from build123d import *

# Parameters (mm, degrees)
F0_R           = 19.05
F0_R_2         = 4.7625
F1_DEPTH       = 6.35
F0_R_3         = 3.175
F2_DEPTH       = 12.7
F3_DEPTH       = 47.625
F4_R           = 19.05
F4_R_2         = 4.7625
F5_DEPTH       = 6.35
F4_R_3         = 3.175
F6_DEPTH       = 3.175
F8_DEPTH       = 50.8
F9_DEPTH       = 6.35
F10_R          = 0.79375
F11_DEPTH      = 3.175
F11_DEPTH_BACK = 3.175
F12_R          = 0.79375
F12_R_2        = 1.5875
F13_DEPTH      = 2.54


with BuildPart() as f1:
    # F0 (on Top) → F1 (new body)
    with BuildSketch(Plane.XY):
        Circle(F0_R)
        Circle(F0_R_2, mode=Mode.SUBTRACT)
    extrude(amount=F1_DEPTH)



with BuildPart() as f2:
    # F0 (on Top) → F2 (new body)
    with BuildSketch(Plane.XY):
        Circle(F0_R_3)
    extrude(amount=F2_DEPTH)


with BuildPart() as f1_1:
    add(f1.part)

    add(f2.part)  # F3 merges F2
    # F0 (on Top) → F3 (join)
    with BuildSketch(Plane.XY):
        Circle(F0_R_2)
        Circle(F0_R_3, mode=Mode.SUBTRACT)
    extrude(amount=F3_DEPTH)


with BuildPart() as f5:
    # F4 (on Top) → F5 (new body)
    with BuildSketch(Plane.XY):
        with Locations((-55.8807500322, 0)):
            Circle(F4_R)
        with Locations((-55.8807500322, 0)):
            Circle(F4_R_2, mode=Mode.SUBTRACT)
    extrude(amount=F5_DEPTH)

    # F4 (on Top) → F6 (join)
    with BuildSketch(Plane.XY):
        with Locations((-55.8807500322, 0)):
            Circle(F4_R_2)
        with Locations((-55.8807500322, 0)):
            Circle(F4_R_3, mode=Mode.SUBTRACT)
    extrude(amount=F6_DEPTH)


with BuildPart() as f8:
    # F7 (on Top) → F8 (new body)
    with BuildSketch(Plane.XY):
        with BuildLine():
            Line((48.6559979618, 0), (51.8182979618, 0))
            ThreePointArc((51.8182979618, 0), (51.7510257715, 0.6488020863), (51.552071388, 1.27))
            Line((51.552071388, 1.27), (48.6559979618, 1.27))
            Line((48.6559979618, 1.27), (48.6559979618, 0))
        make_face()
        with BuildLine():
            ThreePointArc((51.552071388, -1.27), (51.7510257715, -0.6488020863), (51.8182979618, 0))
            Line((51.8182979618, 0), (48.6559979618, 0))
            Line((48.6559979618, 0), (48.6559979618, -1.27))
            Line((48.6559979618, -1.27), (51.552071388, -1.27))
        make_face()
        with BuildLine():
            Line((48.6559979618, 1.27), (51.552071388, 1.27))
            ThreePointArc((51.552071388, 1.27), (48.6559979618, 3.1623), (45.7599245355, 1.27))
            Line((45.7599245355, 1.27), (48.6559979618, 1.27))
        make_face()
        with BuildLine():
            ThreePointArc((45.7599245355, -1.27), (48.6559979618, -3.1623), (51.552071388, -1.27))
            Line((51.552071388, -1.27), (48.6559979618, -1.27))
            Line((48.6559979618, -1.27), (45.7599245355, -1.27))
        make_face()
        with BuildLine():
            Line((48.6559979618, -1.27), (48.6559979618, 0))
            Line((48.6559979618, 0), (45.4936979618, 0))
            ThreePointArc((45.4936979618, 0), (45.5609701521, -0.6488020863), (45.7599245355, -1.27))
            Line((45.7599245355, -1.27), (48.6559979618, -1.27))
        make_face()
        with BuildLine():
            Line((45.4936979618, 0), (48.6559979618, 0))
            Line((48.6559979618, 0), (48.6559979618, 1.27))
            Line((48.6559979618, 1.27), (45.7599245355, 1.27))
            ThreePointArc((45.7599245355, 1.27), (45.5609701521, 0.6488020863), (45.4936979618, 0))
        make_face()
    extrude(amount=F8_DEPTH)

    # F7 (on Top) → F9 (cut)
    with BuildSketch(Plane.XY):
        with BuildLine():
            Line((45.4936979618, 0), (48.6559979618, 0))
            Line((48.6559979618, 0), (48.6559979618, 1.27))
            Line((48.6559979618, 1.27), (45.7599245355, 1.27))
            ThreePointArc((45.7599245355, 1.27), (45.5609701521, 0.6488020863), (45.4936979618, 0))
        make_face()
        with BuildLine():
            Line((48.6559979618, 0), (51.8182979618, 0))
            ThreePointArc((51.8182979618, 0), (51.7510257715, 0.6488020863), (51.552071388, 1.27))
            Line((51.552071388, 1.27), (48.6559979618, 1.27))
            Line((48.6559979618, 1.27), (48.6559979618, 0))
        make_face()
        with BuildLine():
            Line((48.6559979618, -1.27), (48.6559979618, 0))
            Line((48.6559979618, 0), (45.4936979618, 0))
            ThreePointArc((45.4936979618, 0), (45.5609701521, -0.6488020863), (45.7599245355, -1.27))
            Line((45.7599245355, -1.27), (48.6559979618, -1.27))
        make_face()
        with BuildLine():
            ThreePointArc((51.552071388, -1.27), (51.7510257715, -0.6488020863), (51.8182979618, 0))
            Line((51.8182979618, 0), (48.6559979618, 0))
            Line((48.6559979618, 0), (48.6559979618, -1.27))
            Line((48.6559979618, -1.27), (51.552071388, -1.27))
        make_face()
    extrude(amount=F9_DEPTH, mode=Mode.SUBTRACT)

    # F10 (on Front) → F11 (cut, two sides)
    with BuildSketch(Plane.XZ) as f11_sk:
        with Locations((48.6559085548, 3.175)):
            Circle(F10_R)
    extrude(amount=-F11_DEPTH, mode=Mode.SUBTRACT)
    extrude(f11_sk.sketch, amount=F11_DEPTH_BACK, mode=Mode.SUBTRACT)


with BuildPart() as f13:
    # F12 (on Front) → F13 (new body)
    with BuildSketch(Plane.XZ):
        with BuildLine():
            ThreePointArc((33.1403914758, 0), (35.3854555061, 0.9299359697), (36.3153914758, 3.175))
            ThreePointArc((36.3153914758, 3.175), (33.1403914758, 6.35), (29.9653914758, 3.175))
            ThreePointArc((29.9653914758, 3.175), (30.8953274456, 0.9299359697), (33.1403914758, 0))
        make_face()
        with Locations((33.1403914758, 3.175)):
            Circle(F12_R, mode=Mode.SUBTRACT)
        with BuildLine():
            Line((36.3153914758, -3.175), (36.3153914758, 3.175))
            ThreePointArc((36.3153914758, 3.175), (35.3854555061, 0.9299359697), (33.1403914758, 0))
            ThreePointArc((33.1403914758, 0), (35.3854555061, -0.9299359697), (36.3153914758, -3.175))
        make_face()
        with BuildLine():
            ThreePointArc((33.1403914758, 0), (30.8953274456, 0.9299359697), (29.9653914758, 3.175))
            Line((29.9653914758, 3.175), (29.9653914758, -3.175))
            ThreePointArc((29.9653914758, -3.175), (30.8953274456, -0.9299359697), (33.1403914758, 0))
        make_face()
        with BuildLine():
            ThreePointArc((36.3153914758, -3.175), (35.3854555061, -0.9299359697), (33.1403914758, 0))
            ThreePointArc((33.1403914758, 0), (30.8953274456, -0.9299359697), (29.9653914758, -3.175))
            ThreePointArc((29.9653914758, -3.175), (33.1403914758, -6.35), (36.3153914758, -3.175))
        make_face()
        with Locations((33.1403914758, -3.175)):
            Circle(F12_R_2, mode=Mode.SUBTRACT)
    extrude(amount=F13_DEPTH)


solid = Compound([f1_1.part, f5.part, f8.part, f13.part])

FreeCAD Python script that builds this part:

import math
import FreeCAD as App
import Part
import Sketcher
from FreeCAD import Vector
Q = App.Units.Quantity

doc = App.newDocument("Part")
body = doc.addObject("PartDesign::Body", "Body")

sketch1 = doc.addObject("Sketcher::SketchObject", "Sketch")
body.addObject(sketch1)
sketch1.AttachmentSupport = (doc.XY_Plane, [""])
sketch1.MapMode = "FlatFace"
sketch1.addGeometry(Part.Circle(Vector(0, 0, 0), Vector(0, 0, 1), 19.1), False)
sketch1.addGeometry(Part.Circle(Vector(0, 0, 0), Vector(0, 0, 1), 4.8), False)
sketch1.addConstraint(Sketcher.Constraint("Coincident", 0, 3, -1, 1))
sketch1.addConstraint(Sketcher.Constraint("Coincident", 1, 3, -1, 1))
sketch1.addConstraint(Sketcher.Constraint("Diameter", 0, Q("1.5 in")))
sketch1.addConstraint(Sketcher.Constraint("Diameter", 1, Q("0.375 in")))
pad1 = doc.addObject("PartDesign::Pad", "Pad")
body.addObject(pad1)
pad1.Profile = sketch1
pad1.Length = Q("0.25 in")
body2 = doc.addObject("PartDesign::Body", "Body001")

sketch2 = doc.addObject("Sketcher::SketchObject", "Sketch001")
body2.addObject(sketch2)
sketch2.AttachmentSupport = (doc.getObject("XY_Plane001"), [""])
sketch2.MapMode = "FlatFace"
sketch2.addGeometry(Part.Circle(Vector(0, 0, 0), Vector(0, 0, 1), 3.2), False)
sketch2.addConstraint(Sketcher.Constraint("Coincident", 0, 3, -1, 1))
sketch2.addConstraint(Sketcher.Constraint("Diameter", 0, Q("0.25 in")))
pad2 = doc.addObject("PartDesign::Pad", "Pad001")
body2.addObject(pad2)
pad2.Profile = sketch2
pad2.Length = Q("0.5 in")
body.AllowCompound = True
doc.recompute()

boolean = doc.addObject("PartDesign::Boolean", "Boolean")
body.addObject(boolean)
boolean.Type = "Fuse"
boolean.addObjects([body2])

sketch3 = doc.addObject("Sketcher::SketchObject", "Sketch002")
body.addObject(sketch3)
sketch3.AttachmentSupport = (doc.XY_Plane, [""])
sketch3.MapMode = "FlatFace"
sketch3.addGeometry(Part.Circle(Vector(0, 0, 0), Vector(0, 0, 1), 4.8), False)
sketch3.addGeometry(Part.Circle(Vector(0, 0, 0), Vector(0, 0, 1), 3.2), False)
sketch3.addConstraint(Sketcher.Constraint("Coincident", 0, 3, -1, 1))
sketch3.addConstraint(Sketcher.Constraint("Coincident", 1, 3, -1, 1))
sketch3.addConstraint(Sketcher.Constraint("Diameter", 1, Q("0.25 in")))
sketch3.addConstraint(Sketcher.Constraint("Diameter", 0, Q("0.375 in")))
pad3 = doc.addObject("PartDesign::Pad", "Pad002")
body.addObject(pad3)
pad3.Profile = sketch3
pad3.Length = Q("1.875 in")
body3 = doc.addObject("PartDesign::Body", "Body002")

sketch4 = doc.addObject("Sketcher::SketchObject", "Sketch003")
body3.addObject(sketch4)
sketch4.AttachmentSupport = (doc.getObject("XY_Plane002"), [""])
sketch4.MapMode = "FlatFace"
sketch4.addGeometry(Part.Circle(Vector(-55.9, 0, 0), Vector(0, 0, 1), 19.1), False)
sketch4.addGeometry(Part.Circle(Vector(-55.9, 0, 0), Vector(0, 0, 1), 4.8), False)
sketch4.addConstraint(Sketcher.Constraint("Coincident", 1, 3, 0, 3))
sketch4.addConstraint(Sketcher.Constraint("PointOnObject", 0, 3, -1))
sketch4.addConstraint(Sketcher.Constraint("Diameter", 0, Q("1.5 in")))
sketch4.addConstraint(Sketcher.Constraint("Diameter", 1, Q("0.375 in")))
sketch4.addConstraint(Sketcher.Constraint("DistanceX", 0, 3, -1, 1, Q("55.88075 mm")))
pad4 = doc.addObject("PartDesign::Pad", "Pad003")
body3.addObject(pad4)
pad4.Profile = sketch4
pad4.Length = Q("0.25 in")

sketch5 = doc.addObject("Sketcher::SketchObject", "Sketch004")
body3.addObject(sketch5)
sketch5.AttachmentSupport = (doc.getObject("XY_Plane002"), [""])
sketch5.MapMode = "FlatFace"
sketch5.addGeometry(Part.Circle(Vector(-55.9, 0, 0), Vector(0, 0, 1), 4.8), False)
sketch5.addGeometry(Part.Circle(Vector(-55.9, 0, 0), Vector(0, 0, 1), 3.2), False)
sketch5.addConstraint(Sketcher.Constraint("Coincident", 1, 3, 0, 3))
sketch5.addConstraint(Sketcher.Constraint("PointOnObject", 0, 3, -1))
sketch5.addConstraint(Sketcher.Constraint("Diameter", 1, Q("0.25 in")))
sketch5.addConstraint(Sketcher.Constraint("Diameter", 0, Q("0.375 in")))
sketch5.addConstraint(Sketcher.Constraint("DistanceX", 0, 3, -1, 1, Q("55.88075 mm")))
pad5 = doc.addObject("PartDesign::Pad", "Pad004")
body3.addObject(pad5)
pad5.Profile = sketch5
pad5.Length = Q("0.125 in")
body4 = doc.addObject("PartDesign::Body", "Body003")

sketch6 = doc.addObject("Sketcher::SketchObject", "Sketch005")
body4.addObject(sketch6)
sketch6.AttachmentSupport = (doc.getObject("XY_Plane003"), [""])
sketch6.MapMode = "FlatFace"
sketch6.addGeometry(Part.ArcOfCircle(Part.Circle(Vector(48.7, 0, 0), Vector(0, 0, 1), 3.2), math.radians(0), math.radians(24)), False)
sketch6.addGeometry(Part.ArcOfCircle(Part.Circle(Vector(48.7, 0, 0), Vector(0, 0, 1), 3.2), math.radians(24), math.radians(156)), False)
sketch6.addGeometry(Part.ArcOfCircle(Part.Circle(Vector(48.7, 0, 0), Vector(0, 0, 1), 3.2), math.radians(156), math.radians(180)), False)
sketch6.addGeometry(Part.ArcOfCircle(Part.Circle(Vector(48.7, 0, 0), Vector(0, 0, 1), 3.2), math.radians(180), math.radians(204)), False)
sketch6.addGeometry(Part.ArcOfCircle(Part.Circle(Vector(48.7, 0, 0), Vector(0, 0, 1), 3.2), math.radians(-156), math.radians(-24)), False)
sketch6.addGeometry(Part.ArcOfCircle(Part.Circle(Vector(48.7, 0, 0), Vector(0, 0, 1), 3.2), math.radians(-24), math.radians(0)), False)
sketch6.addConstraint(Sketcher.Constraint("Tangent", 0, 2, 1, 1))
sketch6.addConstraint(Sketcher.Constraint("Tangent", 1, 2, 2, 1))
sketch6.addConstraint(Sketcher.Constraint("Tangent", 2, 2, 3, 1))
sketch6.addConstraint(Sketcher.Constraint("Tangent", 3, 2, 4, 1))
sketch6.addConstraint(Sketcher.Constraint("Tangent", 4, 2, 5, 1))
sketch6.addConstraint(Sketcher.Constraint("Tangent", 5, 2, 0, 1))
sketch6.addConstraint(Sketcher.Constraint("Coincident", 2, 3, 0, 3))
sketch6.addConstraint(Sketcher.Constraint("Equal", 2, 3))
sketch6.addConstraint(Sketcher.Constraint("Symmetric", 1, 2, 3, 2, -1))
sketch6.addConstraint(Sketcher.Constraint("PointOnObject", 2, 2, -1))
sketch6.addConstraint(Sketcher.Constraint("PointOnObject", 5, 2, -1))
sketch6.addConstraint(Sketcher.Constraint("Horizontal", 0, 2, 1, 2))
sketch6.addConstraint(Sketcher.Constraint("Horizontal", 3, 2, 4, 2))
sketch6.addConstraint(Sketcher.Constraint("Radius", 0, Q("0.1245 in")))
sketch6.addConstraint(Sketcher.Constraint("DistanceY", 3, 2, 1, 2, Q("0.1 in")))
sketch6.addConstraint(Sketcher.Constraint("DistanceX", -1, 1, 0, 2, Q("51.552071 mm")))
pad6 = doc.addObject("PartDesign::Pad", "Pad005")
body4.addObject(pad6)
pad6.Profile = sketch6
pad6.Length = Q("2 in")

sketch7 = doc.addObject("Sketcher::SketchObject", "Sketch006")
body4.addObject(sketch7)
sketch7.AttachmentSupport = (doc.getObject("XY_Plane003"), [""])
sketch7.MapMode = "FlatFace"
sketch7.addGeometry(Part.ArcOfCircle(Part.Circle(Vector(48.7, 0, 0), Vector(0, 0, 1), 3.2), math.radians(0), math.radians(24)), False)
sketch7.addGeometry(Part.LineSegment(Vector(51.6, 1.3, 0), Vector(45.8, 1.3, 0)), False)
sketch7.addGeometry(Part.ArcOfCircle(Part.Circle(Vector(48.7, 0, 0), Vector(0, 0, 1), 3.2), math.radians(156), math.radians(180)), False)
sketch7.addGeometry(Part.ArcOfCircle(Part.Circle(Vector(48.7, 0, 0), Vector(0, 0, 1), 3.2), math.radians(180), math.radians(204)), False)
sketch7.addGeometry(Part.LineSegment(Vector(45.8, -1.3, 0), Vector(51.6, -1.3, 0)), False)
sketch7.addGeometry(Part.ArcOfCircle(Part.Circle(Vector(48.7, 0, 0), Vector(0, 0, 1), 3.2), math.radians(-24), math.radians(0)), False)
sketch7.addConstraint(Sketcher.Constraint("Coincident", 0, 2, 1, 1))
sketch7.addConstraint(Sketcher.Constraint("Coincident", 1, 2, 2, 1))
sketch7.addConstraint(Sketcher.Constraint("Tangent", 2, 2, 3, 1))
sketch7.addConstraint(Sketcher.Constraint("Coincident", 3, 2, 4, 1))
sketch7.addConstraint(Sketcher.Constraint("Coincident", 4, 2, 5, 1))
sketch7.addConstraint(Sketcher.Constraint("Tangent", 5, 2, 0, 1))
sketch7.addConstraint(Sketcher.Constraint("Horizontal", 1))
sketch7.addConstraint(Sketcher.Constraint("Horizontal", 4))
sketch7.addConstraint(Sketcher.Constraint("Coincident", 2, 3, 0, 3))
sketch7.addConstraint(Sketcher.Constraint("Equal", 0, 2))
sketch7.addConstraint(Sketcher.Constraint("Equal", 2, 3))
sketch7.addConstraint(Sketcher.Constraint("Equal", 3, 5))
sketch7.addConstraint(Sketcher.Constraint("Symmetric", 1, 2, 3, 2, -1))
sketch7.addConstraint(Sketcher.Constraint("PointOnObject", 2, 2, -1))
sketch7.addConstraint(Sketcher.Constraint("PointOnObject", 5, 2, -1))
sketch7.addConstraint(Sketcher.Constraint("Radius", 0, Q("0.1245 in")))
sketch7.addConstraint(Sketcher.Constraint("DistanceY", 3, 2, 1, 2, Q("0.1 in")))
sketch7.addConstraint(Sketcher.Constraint("DistanceX", -1, 1, 0, 2, Q("51.552071 mm")))
pocket1 = doc.addObject("PartDesign::Pocket", "Pocket")
body4.addObject(pocket1)
pocket1.Profile = sketch7
pocket1.Length = Q("0.25 in")
pocket1.Reversed = True

sketch8 = doc.addObject("Sketcher::SketchObject", "Sketch007")
body4.addObject(sketch8)
sketch8.AttachmentSupport = (doc.getObject("XZ_Plane003"), [""])
sketch8.MapMode = "FlatFace"
sketch8.addGeometry(Part.Circle(Vector(48.7, 3.2, 0), Vector(0, 0, 1), 0.8), False)
sketch8.addConstraint(Sketcher.Constraint("Diameter", 0, Q("0.0625 in")))
sketch8.addConstraint(Sketcher.Constraint("DistanceY", -1, 1, 0, 3, Q("0.125 in")))
sketch8.addConstraint(Sketcher.Constraint("DistanceX", -1, 1, 0, 3, Q("48.655909 mm")))
pocket2 = doc.addObject("PartDesign::Pocket", "Pocket001")
body4.addObject(pocket2)
pocket2.Profile = sketch8
pocket2.Type = "ThroughAll"
pocket2.Midplane = True
body5 = doc.addObject("PartDesign::Body", "Body004")

sketch9 = doc.addObject("Sketcher::SketchObject", "Sketch008")
body5.addObject(sketch9)
sketch9.AttachmentSupport = (doc.getObject("XZ_Plane004"), [""])
sketch9.MapMode = "FlatFace"
sketch9.addGeometry(Part.LineSegment(Vector(36.3, -3.2, 0), Vector(36.3, 3.2, 0)), False)
sketch9.addGeometry(Part.ArcOfCircle(Part.Circle(Vector(33.1, 3.2, 0), Vector(0, 0, 1), 3.2), math.radians(0), math.radians(180)), False)
sketch9.addGeometry(Part.LineSegment(Vector(30, 3.2, 0), Vector(30, -3.2, 0)), False)
sketch9.addGeometry(Part.ArcOfCircle(Part.Circle(Vector(33.1, -3.2, 0), Vector(0, 0, 1), 3.2), math.radians(180), math.radians(360)), False)
sketch9.addGeometry(Part.Circle(Vector(33.1, -3.2, 0), Vector(0, 0, 1), 1.6), False)
sketch9.addGeometry(Part.Circle(Vector(33.1, 3.2, 0), Vector(0, 0, 1), 0.8), False)
sketch9.addConstraint(Sketcher.Constraint("Tangent", 0, 2, 1, 1))
sketch9.addConstraint(Sketcher.Constraint("Tangent", 1, 2, 2, 1))
sketch9.addConstraint(Sketcher.Constraint("Tangent", 2, 2, 3, 1))
sketch9.addConstraint(Sketcher.Constraint("Tangent", 3, 2, 0, 1))
sketch9.addConstraint(Sketcher.Constraint("Vertical", 0))
sketch9.addConstraint(Sketcher.Constraint("Vertical", 2))
sketch9.addConstraint(Sketcher.Constraint("Coincident", 4, 3, 3, 3))
sketch9.addConstraint(Sketcher.Constraint("Coincident", 5, 3, 1, 3))
sketch9.addConstraint(Sketcher.Constraint("Diameter", 4, Q("0.125 in")))
sketch9.addConstraint(Sketcher.Constraint("Diameter", 5, Q("0.0625 in")))
sketch9.addConstraint(Sketcher.Constraint("Radius", 1, Q("0.125 in")))
sketch9.addConstraint(Sketcher.Constraint("DistanceY", 0, 1, 0, 2, Q("0.25 in")))
sketch9.addConstraint(Sketcher.Constraint("DistanceY", -1, 1, 1, 3, Q("0.125 in")))
sketch9.addConstraint(Sketcher.Constraint("DistanceX", -1, 1, 1, 3, Q("33.140391 mm")))
pad7 = doc.addObject("PartDesign::Pad", "Pad006")
body5.addObject(pad7)
pad7.Profile = sketch9
pad7.Length = Q("0.1 in")

doc.recompute()
